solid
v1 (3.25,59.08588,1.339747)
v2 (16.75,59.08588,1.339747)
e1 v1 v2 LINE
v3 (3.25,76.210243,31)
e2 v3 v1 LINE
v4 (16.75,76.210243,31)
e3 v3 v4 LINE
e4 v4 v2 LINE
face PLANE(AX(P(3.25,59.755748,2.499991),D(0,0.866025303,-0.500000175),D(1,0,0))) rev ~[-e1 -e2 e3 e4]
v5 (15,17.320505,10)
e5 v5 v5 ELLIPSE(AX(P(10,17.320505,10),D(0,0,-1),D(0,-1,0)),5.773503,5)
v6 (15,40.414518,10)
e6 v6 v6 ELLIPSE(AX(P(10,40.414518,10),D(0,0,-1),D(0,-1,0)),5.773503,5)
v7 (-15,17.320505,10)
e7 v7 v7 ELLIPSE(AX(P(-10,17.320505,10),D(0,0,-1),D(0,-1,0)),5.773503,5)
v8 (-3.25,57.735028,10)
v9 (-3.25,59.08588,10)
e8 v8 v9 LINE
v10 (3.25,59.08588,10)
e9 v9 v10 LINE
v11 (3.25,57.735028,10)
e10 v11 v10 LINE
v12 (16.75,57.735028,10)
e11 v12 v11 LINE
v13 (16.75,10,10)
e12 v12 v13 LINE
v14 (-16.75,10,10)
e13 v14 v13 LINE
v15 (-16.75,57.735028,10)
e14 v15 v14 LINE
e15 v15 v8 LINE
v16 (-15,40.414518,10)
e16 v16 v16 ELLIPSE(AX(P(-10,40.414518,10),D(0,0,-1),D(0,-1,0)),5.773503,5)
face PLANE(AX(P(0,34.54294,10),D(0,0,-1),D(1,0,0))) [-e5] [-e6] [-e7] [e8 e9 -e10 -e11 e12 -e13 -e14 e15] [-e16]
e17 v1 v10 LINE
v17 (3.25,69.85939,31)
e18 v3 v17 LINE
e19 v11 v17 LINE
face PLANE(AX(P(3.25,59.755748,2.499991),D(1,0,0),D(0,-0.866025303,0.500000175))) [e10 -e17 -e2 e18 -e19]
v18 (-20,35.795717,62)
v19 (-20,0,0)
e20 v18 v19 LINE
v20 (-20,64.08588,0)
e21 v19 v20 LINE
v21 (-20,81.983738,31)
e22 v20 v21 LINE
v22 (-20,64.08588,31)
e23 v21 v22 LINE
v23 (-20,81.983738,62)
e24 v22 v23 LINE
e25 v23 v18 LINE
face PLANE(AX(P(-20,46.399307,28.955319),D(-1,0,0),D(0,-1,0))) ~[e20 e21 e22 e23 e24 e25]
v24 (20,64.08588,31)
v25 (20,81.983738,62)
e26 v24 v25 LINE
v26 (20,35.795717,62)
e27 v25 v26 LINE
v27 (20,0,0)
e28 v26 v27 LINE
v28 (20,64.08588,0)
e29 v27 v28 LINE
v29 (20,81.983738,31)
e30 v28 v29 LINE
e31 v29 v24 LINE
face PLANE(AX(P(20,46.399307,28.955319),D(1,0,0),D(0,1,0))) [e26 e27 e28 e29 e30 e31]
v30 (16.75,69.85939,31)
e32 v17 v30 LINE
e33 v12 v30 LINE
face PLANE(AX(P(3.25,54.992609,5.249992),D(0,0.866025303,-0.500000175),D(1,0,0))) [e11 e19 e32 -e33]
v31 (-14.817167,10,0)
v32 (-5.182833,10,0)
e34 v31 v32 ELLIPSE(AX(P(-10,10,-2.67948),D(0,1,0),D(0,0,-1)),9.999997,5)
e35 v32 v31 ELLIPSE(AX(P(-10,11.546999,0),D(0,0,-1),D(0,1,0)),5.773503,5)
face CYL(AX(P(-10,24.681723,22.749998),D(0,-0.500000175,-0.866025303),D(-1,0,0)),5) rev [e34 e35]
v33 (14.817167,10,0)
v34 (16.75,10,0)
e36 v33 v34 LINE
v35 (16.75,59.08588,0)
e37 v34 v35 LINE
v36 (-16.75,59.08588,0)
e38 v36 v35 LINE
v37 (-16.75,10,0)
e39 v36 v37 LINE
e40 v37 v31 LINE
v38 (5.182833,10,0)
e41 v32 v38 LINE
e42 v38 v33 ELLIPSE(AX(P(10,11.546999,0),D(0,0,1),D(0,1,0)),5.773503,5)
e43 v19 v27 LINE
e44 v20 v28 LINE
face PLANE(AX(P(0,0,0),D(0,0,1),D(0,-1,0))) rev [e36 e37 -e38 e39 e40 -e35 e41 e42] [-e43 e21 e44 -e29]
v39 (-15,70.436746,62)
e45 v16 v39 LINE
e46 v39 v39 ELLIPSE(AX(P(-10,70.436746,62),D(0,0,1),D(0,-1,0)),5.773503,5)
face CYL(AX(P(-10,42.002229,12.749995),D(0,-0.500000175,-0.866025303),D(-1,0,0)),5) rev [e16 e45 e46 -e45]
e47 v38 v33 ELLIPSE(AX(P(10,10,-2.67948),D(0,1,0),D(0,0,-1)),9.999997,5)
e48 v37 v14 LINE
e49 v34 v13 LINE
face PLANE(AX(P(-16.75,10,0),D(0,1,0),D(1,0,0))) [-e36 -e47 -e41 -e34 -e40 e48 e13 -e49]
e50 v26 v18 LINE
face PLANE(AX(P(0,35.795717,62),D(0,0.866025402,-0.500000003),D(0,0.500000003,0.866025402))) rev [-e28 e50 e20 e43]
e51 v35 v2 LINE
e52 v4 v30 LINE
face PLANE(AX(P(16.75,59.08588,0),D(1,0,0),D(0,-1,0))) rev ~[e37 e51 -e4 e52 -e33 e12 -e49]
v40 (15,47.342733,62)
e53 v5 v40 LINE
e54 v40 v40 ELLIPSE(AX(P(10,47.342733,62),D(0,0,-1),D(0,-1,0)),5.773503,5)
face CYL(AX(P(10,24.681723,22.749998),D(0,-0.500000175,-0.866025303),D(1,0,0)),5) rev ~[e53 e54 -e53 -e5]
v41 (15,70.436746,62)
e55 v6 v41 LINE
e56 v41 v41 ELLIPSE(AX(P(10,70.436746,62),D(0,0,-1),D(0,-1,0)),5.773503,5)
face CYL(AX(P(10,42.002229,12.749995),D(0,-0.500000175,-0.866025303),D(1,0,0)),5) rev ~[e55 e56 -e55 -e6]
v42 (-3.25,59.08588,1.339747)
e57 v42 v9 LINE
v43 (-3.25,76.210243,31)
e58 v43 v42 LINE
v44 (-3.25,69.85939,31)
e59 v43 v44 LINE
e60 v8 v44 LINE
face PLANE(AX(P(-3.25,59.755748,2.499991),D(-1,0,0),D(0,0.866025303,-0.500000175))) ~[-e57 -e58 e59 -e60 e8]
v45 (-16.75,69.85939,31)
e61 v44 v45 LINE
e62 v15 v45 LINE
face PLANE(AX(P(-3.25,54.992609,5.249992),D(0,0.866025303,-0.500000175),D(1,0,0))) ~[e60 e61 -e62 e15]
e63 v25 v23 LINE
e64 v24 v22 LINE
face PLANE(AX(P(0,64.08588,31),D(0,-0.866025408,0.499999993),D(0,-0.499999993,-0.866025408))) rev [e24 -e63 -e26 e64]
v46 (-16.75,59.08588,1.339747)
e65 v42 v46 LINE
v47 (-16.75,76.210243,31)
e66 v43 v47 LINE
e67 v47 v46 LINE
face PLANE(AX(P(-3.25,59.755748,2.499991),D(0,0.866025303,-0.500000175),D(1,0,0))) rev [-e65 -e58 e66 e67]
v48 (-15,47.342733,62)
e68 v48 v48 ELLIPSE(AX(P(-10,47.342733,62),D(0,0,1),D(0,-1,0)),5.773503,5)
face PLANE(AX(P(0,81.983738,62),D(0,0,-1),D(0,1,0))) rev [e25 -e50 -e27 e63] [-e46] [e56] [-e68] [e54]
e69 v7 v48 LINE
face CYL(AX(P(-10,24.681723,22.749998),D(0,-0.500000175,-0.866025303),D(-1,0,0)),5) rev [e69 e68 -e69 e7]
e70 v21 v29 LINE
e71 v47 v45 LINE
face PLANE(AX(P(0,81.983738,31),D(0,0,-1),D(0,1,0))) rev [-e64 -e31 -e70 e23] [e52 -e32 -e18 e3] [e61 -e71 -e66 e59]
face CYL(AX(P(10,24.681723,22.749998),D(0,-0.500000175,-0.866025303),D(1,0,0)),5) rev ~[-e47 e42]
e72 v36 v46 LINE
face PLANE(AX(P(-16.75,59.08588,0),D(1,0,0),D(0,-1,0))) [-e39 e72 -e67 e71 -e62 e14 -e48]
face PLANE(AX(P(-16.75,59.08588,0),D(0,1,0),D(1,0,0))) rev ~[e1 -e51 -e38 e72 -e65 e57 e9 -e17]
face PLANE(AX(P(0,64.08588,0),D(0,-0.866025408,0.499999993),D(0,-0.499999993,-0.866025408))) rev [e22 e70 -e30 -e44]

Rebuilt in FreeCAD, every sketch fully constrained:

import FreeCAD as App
import Part
import Sketcher
from FreeCAD import Vector
Q = App.Units.Quantity

doc = App.newDocument("Part")
body = doc.addObject("PartDesign::Body", "Body")

sketch1 = body.newObject("Sketcher::SketchObject", "Sketch")
sketch1.AttachmentSupport = (doc.getObject("YZ_Plane"), [""])
sketch1.MapMode = "FlatFace"
sketch1.addGeometry(Part.LineSegment(Vector(35.795717, 62, 0), Vector(0, 0, 0)), False)
sketch1.addGeometry(Part.LineSegment(Vector(0, 0, 0), Vector(64.08588, 0, 0)), False)
sketch1.addGeometry(Part.LineSegment(Vector(64.08588, 0, 0), Vector(81.983738, 31, 0)), False)
sketch1.addGeometry(Part.LineSegment(Vector(81.983738, 31, 0), Vector(64.08588, 31, 0)), False)
sketch1.addGeometry(Part.LineSegment(Vector(64.08588, 31, 0), Vector(81.983738, 62, 0)), False)
sketch1.addGeometry(Part.LineSegment(Vector(81.983738, 62, 0), Vector(35.795717, 62, 0)), False)
sketch1.addConstraint(Sketcher.Constraint("Coincident", 0, 2, 1, 1))
sketch1.addConstraint(Sketcher.Constraint("Coincident", 1, 2, 2, 1))
sketch1.addConstraint(Sketcher.Constraint("Coincident", 2, 2, 3, 1))
sketch1.addConstraint(Sketcher.Constraint("Coincident", 3, 2, 4, 1))
sketch1.addConstraint(Sketcher.Constraint("Coincident", 4, 2, 5, 1))
sketch1.addConstraint(Sketcher.Constraint("Coincident", 5, 2, 0, 1))
sketch1.addConstraint(Sketcher.Constraint("Horizontal", 1))
sketch1.addConstraint(Sketcher.Constraint("Horizontal", 3))
sketch1.addConstraint(Sketcher.Constraint("Horizontal", 5))
sketch1.addConstraint(Sketcher.Constraint("Coincident", 0, 2, -1, 1))
sketch1.addConstraint(Sketcher.Constraint("Parallel", 0, 2))
sketch1.addConstraint(Sketcher.Constraint("Parallel", 2, 4))
sketch1.addConstraint(Sketcher.Constraint("Vertical", 1, 2, 3, 2))
sketch1.addConstraint(Sketcher.Constraint("Vertical", 2, 2, 4, 2))
sketch1.addConstraint(Sketcher.Constraint("Angle", 0, Q("-120 deg")))
sketch1.addConstraint(Sketcher.Constraint("DistanceY", -1, 1, 2, 2, Q("31 mm")))
sketch1.addConstraint(Sketcher.Constraint("DistanceX", 1, 1, 1, 2, Q("64.08588 mm")))
pad1 = body.newObject("PartDesign::Pad", "Pad")
pad1.Profile = sketch1
pad1.Length = 20

sketch2 = body.newObject("Sketcher::SketchObject", "Sketch001")
sketch2.Placement = App.Placement(Vector(0, 16.02147, 27.75), App.Rotation(Vector(1, 0, 0), Vector(0, -0.866025303, 0.500000175), Vector(0, -0.500000175, -0.866025303), "ZXY"))
sketch2.addGeometry(Part.Circle(Vector(10, -10, 0), Vector(0, 0, 1), 5), False)
sketch2.addGeometry(Part.Circle(Vector(10, -30, 0), Vector(0, 0, 1), 5), False)
sketch2.addGeometry(Part.LineSegment(Vector(3.25, -45, 0), Vector(3.25, -50.5, 0)), False)
sketch2.addGeometry(Part.LineSegment(Vector(3.25, -50.5, 0), Vector(16.75, -50.5, 0)), False)
sketch2.addGeometry(Part.LineSegment(Vector(16.75, -50.5, 0), Vector(16.75, -45, 0)), False)
sketch2.addGeometry(Part.LineSegment(Vector(16.75, -45, 0), Vector(3.25, -45, 0)), False)
sketch2.addConstraint(Sketcher.Constraint("Coincident", 2, 2, 3, 1))
sketch2.addConstraint(Sketcher.Constraint("Coincident", 3, 2, 4, 1))
sketch2.addConstraint(Sketcher.Constraint("Coincident", 4, 2, 5, 1))
sketch2.addConstraint(Sketcher.Constraint("Coincident", 5, 2, 2, 1))
sketch2.addConstraint(Sketcher.Constraint("Vertical", 2))
sketch2.addConstraint(Sketcher.Constraint("Horizontal", 3))
sketch2.addConstraint(Sketcher.Constraint("Vertical", 4))
sketch2.addConstraint(Sketcher.Constraint("Horizontal", 5))
sketch2.addConstraint(Sketcher.Constraint("Equal", 0, 1))
sketch2.addConstraint(Sketcher.Constraint("Vertical", 0, 3, 1, 3))
sketch2.addConstraint(Sketcher.Constraint("Diameter", 0, Q("10 mm")))
sketch2.addConstraint(Sketcher.Constraint("DistanceX", 3, 1, 3, 2, Q("13.5 mm")))
sketch2.addConstraint(Sketcher.Constraint("DistanceY", 2, 2, 2, 1, Q("5.5 mm")))
sketch2.addConstraint(Sketcher.Constraint("DistanceX", -1, 1, 0, 3, Q("10 mm")))
sketch2.addConstraint(Sketcher.Constraint("DistanceY", 0, 3, -1, 1, Q("10 mm")))
sketch2.addConstraint(Sketcher.Constraint("DistanceY", 1, 3, -1, 1, Q("30 mm")))
sketch2.addConstraint(Sketcher.Constraint("DistanceY", 4, 2, -1, 1, Q("45 mm")))
sketch2.addConstraint(Sketcher.Constraint("DistanceX", -1, 1, 2, 2, Q("3.25 mm")))
pocket1 = body.newObject("PartDesign::Pocket", "Pocket")
pocket1.Profile = sketch2
pocket1.Length = 1000
pocket1.Midplane = True
body2 = doc.addObject("PartDesign::Body", "Body001")
doc.recompute()

body2.BaseFeature = body
doc.recompute()

mirroring = doc.addObject("Part::Mirroring", "Mirroring")
mirroring.Source = body
mirroring.Base = Vector(0, 0, 0)
mirroring.Normal = Vector(1, 0, 0)
body3 = doc.addObject("PartDesign::Body", "Body002")
body3.BaseFeature = mirroring
boolean = body2.newObject("PartDesign::Boolean", "Boolean")
boolean.Type = "Fuse"
boolean.addObjects([body3])
doc.recompute()

sketch3 = body2.newObject("Sketcher::SketchObject", "Sketch002")
sketch3.AttachmentSupport = (doc.getObject("XY_Plane001"), [""])
sketch3.MapMode = "FlatFace"
sketch3.addGeometry(Part.LineSegment(Vector(-16.75, 10, 0), Vector(-16.75, 59.08588, 0)), False)
sketch3.addGeometry(Part.LineSegment(Vector(-16.75, 59.08588, 0), Vector(16.75, 59.08588, 0)), False)
sketch3.addGeometry(Part.LineSegment(Vector(16.75, 59.08588, 0), Vector(16.75, 10, 0)), False)
sketch3.addGeometry(Part.LineSegment(Vector(16.75, 10, 0), Vector(-16.75, 10, 0)), False)
sketch3.addConstraint(Sketcher.Constraint("Coincident", 0, 2, 1, 1))
sketch3.addConstraint(Sketcher.Constraint("Coincident", 1, 2, 2, 1))
sketch3.addConstraint(Sketcher.Constraint("Coincident", 2, 2, 3, 1))
sketch3.addConstraint(Sketcher.Constraint("Coincident", 3, 2, 0, 1))
sketch3.addConstraint(Sketcher.Constraint("Vertical", 0))
sketch3.addConstraint(Sketcher.Constraint("Horizontal", 1))
sketch3.addConstraint(Sketcher.Constraint("Vertical", 2))
sketch3.addConstraint(Sketcher.Constraint("Horizontal", 3))
sketch3.addConstraint(Sketcher.Constraint("DistanceX", 1, 1, 1, 2, Q("33.5 mm")))
sketch3.addConstraint(Sketcher.Constraint("DistanceY", -1, 1, 2, 2, Q("10 mm")))
sketch3.addConstraint(Sketcher.Constraint("DistanceX", 0, 2, -1, 1, Q("16.75 mm")))
sketch3.addConstraint(Sketcher.Constraint("DistanceY", 0, 1, 0, 2, Q("49.08588 mm")))
pocket2 = body2.newObject("PartDesign::Pocket", "Pocket001")
pocket2.Profile = sketch3
pocket2.Length = 10
pocket2.Reversed = True
mirroring.Visibility = False

doc.recompute()
